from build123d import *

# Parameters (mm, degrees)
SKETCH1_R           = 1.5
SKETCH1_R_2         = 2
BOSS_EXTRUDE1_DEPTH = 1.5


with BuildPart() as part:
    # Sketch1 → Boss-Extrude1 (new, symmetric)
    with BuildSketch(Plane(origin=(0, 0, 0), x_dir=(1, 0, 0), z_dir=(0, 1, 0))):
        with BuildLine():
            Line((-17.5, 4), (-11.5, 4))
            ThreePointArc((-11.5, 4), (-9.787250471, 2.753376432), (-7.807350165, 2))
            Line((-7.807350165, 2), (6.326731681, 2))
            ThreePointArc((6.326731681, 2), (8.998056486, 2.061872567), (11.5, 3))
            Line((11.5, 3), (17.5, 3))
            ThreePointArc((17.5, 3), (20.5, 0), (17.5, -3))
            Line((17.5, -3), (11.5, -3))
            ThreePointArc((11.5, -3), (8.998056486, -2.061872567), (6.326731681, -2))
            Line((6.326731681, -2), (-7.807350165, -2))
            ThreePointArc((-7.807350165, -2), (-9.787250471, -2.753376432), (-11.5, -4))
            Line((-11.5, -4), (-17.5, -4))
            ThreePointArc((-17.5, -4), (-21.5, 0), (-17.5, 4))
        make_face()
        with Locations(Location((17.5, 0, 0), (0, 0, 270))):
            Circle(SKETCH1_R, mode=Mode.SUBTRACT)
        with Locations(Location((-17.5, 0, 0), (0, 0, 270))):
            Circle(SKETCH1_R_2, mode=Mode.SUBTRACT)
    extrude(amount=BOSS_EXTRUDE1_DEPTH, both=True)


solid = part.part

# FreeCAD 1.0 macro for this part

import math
import FreeCAD as App
import Part
import Sketcher
from FreeCAD import Vector
Q = App.Units.Quantity

doc = App.newDocument("Part")
body = doc.addObject("PartDesign::Body", "Body")

# Sketch on XZ plane
sketch1 = body.newObject("Sketcher::SketchObject", "Sketch")
sketch1.AttachmentSupport = (doc.getObject("XZ_Plane"), [""])
sketch1.MapMode = "FlatFace"
sketch1.addGeometry([
    Part.LineSegment(Vector(-11.5, -4, 0), Vector(-17.5, -4, 0)),  # 0
    Part.ArcOfCircle(Part.Circle(Vector(-17.5, 0, 0), Vector(0, 0, 1), 4), math.radians(90), math.radians(270)),  # 1
    Part.LineSegment(Vector(-17.5, 4, 0), Vector(-11.5, 4, 0)),  # 2
    Part.ArcOfCircle(Part.Circle(Vector(-6, 9.8, 0), Vector(0, 0, 1), 8), math.radians(-134), math.radians(-103)),  # 3
    Part.LineSegment(Vector(-7.8, 2, 0), Vector(6.3, 2, 0)),  # 4
    Part.ArcOfCircle(Part.Circle(Vector(7.5, 9.9, 0), Vector(0, 0, 1), 8), math.radians(-98), math.radians(-60)),  # 5
    Part.LineSegment(Vector(11.5, 3, 0), Vector(17.5, 3, 0)),  # 6
    Part.ArcOfCircle(Part.Circle(Vector(17.5, 0, 0), Vector(0, 0, 1), 3), math.radians(-90), math.radians(90)),  # 7
    Part.LineSegment(Vector(17.5, -3, 0), Vector(11.5, -3, 0)),  # 8
    Part.ArcOfCircle(Part.Circle(Vector(7.5, -9.9, 0), Vector(0, 0, 1), 8), math.radians(60), math.radians(98)),  # 9
    Part.LineSegment(Vector(6.3, -2, 0), Vector(-7.8, -2, 0)),  # 10
    Part.ArcOfCircle(Part.Circle(Vector(-6, -9.8, 0), Vector(0, 0, 1), 8), math.radians(103), math.radians(134)),  # 11
    Part.Circle(Vector(17.5, 0, 0), Vector(0, 0, 1), 1.5),  # 12
    Part.Circle(Vector(-17.5, 0, 0), Vector(0, 0, 1), 2),  # 13
], False)
sketch1.addConstraint([
    Sketcher.Constraint("Tangent", 0, 2, 1, 2),
    Sketcher.Constraint("Tangent", 1, 1, 2, 1),
    Sketcher.Constraint("Coincident", 2, 2, 3, 1),
    Sketcher.Constraint("Coincident", 3, 2, 4, 1),
    Sketcher.Constraint("Coincident", 4, 2, 5, 1),
    Sketcher.Constraint("Coincident", 5, 2, 6, 1),
    Sketcher.Constraint("Tangent", 6, 2, 7, 2),
    Sketcher.Constraint("Tangent", 7, 1, 8, 1),
    Sketcher.Constraint("Coincident", 8, 2, 9, 1),
    Sketcher.Constraint("Coincident", 9, 2, 10, 1),
    Sketcher.Constraint("Coincident", 10, 2, 11, 1),
    Sketcher.Constraint("Coincident", 11, 2, 0, 1),
    Sketcher.Constraint("Horizontal", 0),
    Sketcher.Constraint("Horizontal", 2),
    Sketcher.Constraint("Horizontal", 4),
    Sketcher.Constraint("Horizontal", 6),
    Sketcher.Constraint("Horizontal", 8),
    Sketcher.Constraint("Horizontal", 10),
    Sketcher.Constraint("Coincident", 12, 3, 7, 3),
    Sketcher.Constraint("Coincident", 13, 3, 1, 3),
    Sketcher.Constraint("Equal", 3, 5),
    Sketcher.Constraint("Equal", 5, 9),
    Sketcher.Constraint("Equal", 9, 11),
    Sketcher.Constraint("Symmetric", 1, 3, 7, 3, -1, 1),
    Sketcher.Constraint("Symmetric", 5, 3, 9, 3, -1),
    Sketcher.Constraint("Symmetric", 3, 3, 11, 3, -1),
    Sketcher.Constraint("PointOnObject", 1, 3, -1),
    Sketcher.Constraint("Vertical", 4, 2, 9, 2),
    Sketcher.Constraint("Equal", 2, 6),
    Sketcher.Constraint("Diameter", 12, Q("3 mm")),
    Sketcher.Constraint("Diameter", 13, Q("4 mm")),
    Sketcher.Constraint("Radius", 1, Q("4 mm")),
    Sketcher.Constraint("Radius", 3, Q("8 mm")),
    Sketcher.Constraint("Radius", 7, Q("3 mm")),
    Sketcher.Constraint("DistanceX", 0, 2, 0, 1, Q("6 mm")),
    Sketcher.Constraint("DistanceY", -1, 1, 3, 2, Q("2 mm")),
    Sketcher.Constraint("DistanceX", 1, 3, 7, 3, Q("35 mm")),
    Sketcher.Constraint("DistanceX", 4, 1, 4, 2, Q("14.134082 mm")),
    Sketcher.Constraint("DistanceX", 3, 3, -1, 1, Q("5.977258 mm")),
])
pad1 = body.newObject("PartDesign::Pad", "Pad")
pad1.Profile = sketch1
pad1.Length = 3
pad1.Midplane = True

doc.recompute()
